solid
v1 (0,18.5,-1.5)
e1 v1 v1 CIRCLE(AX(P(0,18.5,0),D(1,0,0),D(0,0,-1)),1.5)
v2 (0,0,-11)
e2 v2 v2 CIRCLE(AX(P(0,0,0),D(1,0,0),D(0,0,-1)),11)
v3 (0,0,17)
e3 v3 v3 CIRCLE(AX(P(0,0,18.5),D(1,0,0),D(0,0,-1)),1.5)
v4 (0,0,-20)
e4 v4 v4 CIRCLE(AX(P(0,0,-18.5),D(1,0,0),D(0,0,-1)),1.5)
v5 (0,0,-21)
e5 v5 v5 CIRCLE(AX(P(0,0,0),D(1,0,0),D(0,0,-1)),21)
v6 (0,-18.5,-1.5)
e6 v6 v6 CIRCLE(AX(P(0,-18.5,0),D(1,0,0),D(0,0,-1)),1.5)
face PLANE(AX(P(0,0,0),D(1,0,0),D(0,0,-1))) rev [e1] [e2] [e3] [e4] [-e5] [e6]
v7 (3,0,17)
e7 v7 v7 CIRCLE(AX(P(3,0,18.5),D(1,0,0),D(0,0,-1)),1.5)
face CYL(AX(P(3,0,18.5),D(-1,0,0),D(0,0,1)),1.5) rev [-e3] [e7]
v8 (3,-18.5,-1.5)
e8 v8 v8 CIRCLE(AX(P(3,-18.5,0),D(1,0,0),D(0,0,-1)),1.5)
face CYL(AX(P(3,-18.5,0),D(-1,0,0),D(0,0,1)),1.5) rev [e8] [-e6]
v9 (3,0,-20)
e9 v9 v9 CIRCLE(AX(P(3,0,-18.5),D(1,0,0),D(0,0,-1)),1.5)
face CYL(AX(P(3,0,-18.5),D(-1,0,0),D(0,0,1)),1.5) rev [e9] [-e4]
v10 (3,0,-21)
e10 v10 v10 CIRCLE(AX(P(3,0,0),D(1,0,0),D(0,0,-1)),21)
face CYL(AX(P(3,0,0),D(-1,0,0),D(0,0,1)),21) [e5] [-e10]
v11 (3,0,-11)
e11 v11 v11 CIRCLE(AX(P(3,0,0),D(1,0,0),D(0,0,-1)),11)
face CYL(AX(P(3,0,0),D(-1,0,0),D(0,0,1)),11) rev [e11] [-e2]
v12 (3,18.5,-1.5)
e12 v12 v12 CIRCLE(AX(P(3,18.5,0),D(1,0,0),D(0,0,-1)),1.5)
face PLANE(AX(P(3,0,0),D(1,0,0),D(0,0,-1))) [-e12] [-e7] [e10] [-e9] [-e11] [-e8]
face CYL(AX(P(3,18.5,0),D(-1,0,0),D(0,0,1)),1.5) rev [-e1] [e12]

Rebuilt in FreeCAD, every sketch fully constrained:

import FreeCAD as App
import Part
import Sketcher

V = App.Vector

doc = App.newDocument("Part")
body = doc.addObject("PartDesign::Body", "Body")

sketch1 = doc.addObject("Sketcher::SketchObject", "Sketch")
body.addObject(sketch1)
sketch1.AttachmentSupport = (doc.YZ_Plane, [""])
sketch1.MapMode = "FlatFace"
sketch1.addGeometry([
    Part.Circle(V(0, 0, 0), V(0, 0, 1), 21),
    Part.Circle(V(-18.5, 0, 0), V(0, 0, 1), 1.5),
    Part.Circle(V(0, 18.5, 0), V(0, 0, 1), 1.5),
    Part.Circle(V(0, 0, 0), V(0, 0, 1), 11),
    Part.Circle(V(0, -18.5, 0), V(0, 0, 1), 1.5),
    Part.Circle(V(18.5, 0, 0), V(0, 0, 1), 1.5),
], False)
sketch1.addConstraint([
    Sketcher.Constraint("Coincident", 0, 3, -1, 1),
    Sketcher.Constraint("Coincident", 3, 3, -1, 1),
    Sketcher.Constraint("Equal", 1, 2),
    Sketcher.Constraint("Equal", 2, 4),
    Sketcher.Constraint("Equal", 4, 5),
    Sketcher.Constraint("Symmetric", 2, 3, 4, 3, -1, 1),
    Sketcher.Constraint("Symmetric", 1, 3, 5, 3, -1, 1),
    Sketcher.Constraint("PointOnObject", 1, 3, -1),
    Sketcher.Constraint("PointOnObject", 2, 3, -2),
    Sketcher.Constraint("Diameter", 0, 42.0),
    Sketcher.Constraint("Diameter", 1, 3.0),
    Sketcher.Constraint("Diameter", 3, 22.0),
    Sketcher.Constraint("DistanceY", 4, 3, 2, 3, 37.0),
    Sketcher.Constraint("DistanceX", 1, 3, 5, 3, 37.0),
])
pad1 = doc.addObject("PartDesign::Pad", "Pad")
body.addObject(pad1)
pad1.Profile = sketch1
pad1.Length = 3

doc.recompute()
